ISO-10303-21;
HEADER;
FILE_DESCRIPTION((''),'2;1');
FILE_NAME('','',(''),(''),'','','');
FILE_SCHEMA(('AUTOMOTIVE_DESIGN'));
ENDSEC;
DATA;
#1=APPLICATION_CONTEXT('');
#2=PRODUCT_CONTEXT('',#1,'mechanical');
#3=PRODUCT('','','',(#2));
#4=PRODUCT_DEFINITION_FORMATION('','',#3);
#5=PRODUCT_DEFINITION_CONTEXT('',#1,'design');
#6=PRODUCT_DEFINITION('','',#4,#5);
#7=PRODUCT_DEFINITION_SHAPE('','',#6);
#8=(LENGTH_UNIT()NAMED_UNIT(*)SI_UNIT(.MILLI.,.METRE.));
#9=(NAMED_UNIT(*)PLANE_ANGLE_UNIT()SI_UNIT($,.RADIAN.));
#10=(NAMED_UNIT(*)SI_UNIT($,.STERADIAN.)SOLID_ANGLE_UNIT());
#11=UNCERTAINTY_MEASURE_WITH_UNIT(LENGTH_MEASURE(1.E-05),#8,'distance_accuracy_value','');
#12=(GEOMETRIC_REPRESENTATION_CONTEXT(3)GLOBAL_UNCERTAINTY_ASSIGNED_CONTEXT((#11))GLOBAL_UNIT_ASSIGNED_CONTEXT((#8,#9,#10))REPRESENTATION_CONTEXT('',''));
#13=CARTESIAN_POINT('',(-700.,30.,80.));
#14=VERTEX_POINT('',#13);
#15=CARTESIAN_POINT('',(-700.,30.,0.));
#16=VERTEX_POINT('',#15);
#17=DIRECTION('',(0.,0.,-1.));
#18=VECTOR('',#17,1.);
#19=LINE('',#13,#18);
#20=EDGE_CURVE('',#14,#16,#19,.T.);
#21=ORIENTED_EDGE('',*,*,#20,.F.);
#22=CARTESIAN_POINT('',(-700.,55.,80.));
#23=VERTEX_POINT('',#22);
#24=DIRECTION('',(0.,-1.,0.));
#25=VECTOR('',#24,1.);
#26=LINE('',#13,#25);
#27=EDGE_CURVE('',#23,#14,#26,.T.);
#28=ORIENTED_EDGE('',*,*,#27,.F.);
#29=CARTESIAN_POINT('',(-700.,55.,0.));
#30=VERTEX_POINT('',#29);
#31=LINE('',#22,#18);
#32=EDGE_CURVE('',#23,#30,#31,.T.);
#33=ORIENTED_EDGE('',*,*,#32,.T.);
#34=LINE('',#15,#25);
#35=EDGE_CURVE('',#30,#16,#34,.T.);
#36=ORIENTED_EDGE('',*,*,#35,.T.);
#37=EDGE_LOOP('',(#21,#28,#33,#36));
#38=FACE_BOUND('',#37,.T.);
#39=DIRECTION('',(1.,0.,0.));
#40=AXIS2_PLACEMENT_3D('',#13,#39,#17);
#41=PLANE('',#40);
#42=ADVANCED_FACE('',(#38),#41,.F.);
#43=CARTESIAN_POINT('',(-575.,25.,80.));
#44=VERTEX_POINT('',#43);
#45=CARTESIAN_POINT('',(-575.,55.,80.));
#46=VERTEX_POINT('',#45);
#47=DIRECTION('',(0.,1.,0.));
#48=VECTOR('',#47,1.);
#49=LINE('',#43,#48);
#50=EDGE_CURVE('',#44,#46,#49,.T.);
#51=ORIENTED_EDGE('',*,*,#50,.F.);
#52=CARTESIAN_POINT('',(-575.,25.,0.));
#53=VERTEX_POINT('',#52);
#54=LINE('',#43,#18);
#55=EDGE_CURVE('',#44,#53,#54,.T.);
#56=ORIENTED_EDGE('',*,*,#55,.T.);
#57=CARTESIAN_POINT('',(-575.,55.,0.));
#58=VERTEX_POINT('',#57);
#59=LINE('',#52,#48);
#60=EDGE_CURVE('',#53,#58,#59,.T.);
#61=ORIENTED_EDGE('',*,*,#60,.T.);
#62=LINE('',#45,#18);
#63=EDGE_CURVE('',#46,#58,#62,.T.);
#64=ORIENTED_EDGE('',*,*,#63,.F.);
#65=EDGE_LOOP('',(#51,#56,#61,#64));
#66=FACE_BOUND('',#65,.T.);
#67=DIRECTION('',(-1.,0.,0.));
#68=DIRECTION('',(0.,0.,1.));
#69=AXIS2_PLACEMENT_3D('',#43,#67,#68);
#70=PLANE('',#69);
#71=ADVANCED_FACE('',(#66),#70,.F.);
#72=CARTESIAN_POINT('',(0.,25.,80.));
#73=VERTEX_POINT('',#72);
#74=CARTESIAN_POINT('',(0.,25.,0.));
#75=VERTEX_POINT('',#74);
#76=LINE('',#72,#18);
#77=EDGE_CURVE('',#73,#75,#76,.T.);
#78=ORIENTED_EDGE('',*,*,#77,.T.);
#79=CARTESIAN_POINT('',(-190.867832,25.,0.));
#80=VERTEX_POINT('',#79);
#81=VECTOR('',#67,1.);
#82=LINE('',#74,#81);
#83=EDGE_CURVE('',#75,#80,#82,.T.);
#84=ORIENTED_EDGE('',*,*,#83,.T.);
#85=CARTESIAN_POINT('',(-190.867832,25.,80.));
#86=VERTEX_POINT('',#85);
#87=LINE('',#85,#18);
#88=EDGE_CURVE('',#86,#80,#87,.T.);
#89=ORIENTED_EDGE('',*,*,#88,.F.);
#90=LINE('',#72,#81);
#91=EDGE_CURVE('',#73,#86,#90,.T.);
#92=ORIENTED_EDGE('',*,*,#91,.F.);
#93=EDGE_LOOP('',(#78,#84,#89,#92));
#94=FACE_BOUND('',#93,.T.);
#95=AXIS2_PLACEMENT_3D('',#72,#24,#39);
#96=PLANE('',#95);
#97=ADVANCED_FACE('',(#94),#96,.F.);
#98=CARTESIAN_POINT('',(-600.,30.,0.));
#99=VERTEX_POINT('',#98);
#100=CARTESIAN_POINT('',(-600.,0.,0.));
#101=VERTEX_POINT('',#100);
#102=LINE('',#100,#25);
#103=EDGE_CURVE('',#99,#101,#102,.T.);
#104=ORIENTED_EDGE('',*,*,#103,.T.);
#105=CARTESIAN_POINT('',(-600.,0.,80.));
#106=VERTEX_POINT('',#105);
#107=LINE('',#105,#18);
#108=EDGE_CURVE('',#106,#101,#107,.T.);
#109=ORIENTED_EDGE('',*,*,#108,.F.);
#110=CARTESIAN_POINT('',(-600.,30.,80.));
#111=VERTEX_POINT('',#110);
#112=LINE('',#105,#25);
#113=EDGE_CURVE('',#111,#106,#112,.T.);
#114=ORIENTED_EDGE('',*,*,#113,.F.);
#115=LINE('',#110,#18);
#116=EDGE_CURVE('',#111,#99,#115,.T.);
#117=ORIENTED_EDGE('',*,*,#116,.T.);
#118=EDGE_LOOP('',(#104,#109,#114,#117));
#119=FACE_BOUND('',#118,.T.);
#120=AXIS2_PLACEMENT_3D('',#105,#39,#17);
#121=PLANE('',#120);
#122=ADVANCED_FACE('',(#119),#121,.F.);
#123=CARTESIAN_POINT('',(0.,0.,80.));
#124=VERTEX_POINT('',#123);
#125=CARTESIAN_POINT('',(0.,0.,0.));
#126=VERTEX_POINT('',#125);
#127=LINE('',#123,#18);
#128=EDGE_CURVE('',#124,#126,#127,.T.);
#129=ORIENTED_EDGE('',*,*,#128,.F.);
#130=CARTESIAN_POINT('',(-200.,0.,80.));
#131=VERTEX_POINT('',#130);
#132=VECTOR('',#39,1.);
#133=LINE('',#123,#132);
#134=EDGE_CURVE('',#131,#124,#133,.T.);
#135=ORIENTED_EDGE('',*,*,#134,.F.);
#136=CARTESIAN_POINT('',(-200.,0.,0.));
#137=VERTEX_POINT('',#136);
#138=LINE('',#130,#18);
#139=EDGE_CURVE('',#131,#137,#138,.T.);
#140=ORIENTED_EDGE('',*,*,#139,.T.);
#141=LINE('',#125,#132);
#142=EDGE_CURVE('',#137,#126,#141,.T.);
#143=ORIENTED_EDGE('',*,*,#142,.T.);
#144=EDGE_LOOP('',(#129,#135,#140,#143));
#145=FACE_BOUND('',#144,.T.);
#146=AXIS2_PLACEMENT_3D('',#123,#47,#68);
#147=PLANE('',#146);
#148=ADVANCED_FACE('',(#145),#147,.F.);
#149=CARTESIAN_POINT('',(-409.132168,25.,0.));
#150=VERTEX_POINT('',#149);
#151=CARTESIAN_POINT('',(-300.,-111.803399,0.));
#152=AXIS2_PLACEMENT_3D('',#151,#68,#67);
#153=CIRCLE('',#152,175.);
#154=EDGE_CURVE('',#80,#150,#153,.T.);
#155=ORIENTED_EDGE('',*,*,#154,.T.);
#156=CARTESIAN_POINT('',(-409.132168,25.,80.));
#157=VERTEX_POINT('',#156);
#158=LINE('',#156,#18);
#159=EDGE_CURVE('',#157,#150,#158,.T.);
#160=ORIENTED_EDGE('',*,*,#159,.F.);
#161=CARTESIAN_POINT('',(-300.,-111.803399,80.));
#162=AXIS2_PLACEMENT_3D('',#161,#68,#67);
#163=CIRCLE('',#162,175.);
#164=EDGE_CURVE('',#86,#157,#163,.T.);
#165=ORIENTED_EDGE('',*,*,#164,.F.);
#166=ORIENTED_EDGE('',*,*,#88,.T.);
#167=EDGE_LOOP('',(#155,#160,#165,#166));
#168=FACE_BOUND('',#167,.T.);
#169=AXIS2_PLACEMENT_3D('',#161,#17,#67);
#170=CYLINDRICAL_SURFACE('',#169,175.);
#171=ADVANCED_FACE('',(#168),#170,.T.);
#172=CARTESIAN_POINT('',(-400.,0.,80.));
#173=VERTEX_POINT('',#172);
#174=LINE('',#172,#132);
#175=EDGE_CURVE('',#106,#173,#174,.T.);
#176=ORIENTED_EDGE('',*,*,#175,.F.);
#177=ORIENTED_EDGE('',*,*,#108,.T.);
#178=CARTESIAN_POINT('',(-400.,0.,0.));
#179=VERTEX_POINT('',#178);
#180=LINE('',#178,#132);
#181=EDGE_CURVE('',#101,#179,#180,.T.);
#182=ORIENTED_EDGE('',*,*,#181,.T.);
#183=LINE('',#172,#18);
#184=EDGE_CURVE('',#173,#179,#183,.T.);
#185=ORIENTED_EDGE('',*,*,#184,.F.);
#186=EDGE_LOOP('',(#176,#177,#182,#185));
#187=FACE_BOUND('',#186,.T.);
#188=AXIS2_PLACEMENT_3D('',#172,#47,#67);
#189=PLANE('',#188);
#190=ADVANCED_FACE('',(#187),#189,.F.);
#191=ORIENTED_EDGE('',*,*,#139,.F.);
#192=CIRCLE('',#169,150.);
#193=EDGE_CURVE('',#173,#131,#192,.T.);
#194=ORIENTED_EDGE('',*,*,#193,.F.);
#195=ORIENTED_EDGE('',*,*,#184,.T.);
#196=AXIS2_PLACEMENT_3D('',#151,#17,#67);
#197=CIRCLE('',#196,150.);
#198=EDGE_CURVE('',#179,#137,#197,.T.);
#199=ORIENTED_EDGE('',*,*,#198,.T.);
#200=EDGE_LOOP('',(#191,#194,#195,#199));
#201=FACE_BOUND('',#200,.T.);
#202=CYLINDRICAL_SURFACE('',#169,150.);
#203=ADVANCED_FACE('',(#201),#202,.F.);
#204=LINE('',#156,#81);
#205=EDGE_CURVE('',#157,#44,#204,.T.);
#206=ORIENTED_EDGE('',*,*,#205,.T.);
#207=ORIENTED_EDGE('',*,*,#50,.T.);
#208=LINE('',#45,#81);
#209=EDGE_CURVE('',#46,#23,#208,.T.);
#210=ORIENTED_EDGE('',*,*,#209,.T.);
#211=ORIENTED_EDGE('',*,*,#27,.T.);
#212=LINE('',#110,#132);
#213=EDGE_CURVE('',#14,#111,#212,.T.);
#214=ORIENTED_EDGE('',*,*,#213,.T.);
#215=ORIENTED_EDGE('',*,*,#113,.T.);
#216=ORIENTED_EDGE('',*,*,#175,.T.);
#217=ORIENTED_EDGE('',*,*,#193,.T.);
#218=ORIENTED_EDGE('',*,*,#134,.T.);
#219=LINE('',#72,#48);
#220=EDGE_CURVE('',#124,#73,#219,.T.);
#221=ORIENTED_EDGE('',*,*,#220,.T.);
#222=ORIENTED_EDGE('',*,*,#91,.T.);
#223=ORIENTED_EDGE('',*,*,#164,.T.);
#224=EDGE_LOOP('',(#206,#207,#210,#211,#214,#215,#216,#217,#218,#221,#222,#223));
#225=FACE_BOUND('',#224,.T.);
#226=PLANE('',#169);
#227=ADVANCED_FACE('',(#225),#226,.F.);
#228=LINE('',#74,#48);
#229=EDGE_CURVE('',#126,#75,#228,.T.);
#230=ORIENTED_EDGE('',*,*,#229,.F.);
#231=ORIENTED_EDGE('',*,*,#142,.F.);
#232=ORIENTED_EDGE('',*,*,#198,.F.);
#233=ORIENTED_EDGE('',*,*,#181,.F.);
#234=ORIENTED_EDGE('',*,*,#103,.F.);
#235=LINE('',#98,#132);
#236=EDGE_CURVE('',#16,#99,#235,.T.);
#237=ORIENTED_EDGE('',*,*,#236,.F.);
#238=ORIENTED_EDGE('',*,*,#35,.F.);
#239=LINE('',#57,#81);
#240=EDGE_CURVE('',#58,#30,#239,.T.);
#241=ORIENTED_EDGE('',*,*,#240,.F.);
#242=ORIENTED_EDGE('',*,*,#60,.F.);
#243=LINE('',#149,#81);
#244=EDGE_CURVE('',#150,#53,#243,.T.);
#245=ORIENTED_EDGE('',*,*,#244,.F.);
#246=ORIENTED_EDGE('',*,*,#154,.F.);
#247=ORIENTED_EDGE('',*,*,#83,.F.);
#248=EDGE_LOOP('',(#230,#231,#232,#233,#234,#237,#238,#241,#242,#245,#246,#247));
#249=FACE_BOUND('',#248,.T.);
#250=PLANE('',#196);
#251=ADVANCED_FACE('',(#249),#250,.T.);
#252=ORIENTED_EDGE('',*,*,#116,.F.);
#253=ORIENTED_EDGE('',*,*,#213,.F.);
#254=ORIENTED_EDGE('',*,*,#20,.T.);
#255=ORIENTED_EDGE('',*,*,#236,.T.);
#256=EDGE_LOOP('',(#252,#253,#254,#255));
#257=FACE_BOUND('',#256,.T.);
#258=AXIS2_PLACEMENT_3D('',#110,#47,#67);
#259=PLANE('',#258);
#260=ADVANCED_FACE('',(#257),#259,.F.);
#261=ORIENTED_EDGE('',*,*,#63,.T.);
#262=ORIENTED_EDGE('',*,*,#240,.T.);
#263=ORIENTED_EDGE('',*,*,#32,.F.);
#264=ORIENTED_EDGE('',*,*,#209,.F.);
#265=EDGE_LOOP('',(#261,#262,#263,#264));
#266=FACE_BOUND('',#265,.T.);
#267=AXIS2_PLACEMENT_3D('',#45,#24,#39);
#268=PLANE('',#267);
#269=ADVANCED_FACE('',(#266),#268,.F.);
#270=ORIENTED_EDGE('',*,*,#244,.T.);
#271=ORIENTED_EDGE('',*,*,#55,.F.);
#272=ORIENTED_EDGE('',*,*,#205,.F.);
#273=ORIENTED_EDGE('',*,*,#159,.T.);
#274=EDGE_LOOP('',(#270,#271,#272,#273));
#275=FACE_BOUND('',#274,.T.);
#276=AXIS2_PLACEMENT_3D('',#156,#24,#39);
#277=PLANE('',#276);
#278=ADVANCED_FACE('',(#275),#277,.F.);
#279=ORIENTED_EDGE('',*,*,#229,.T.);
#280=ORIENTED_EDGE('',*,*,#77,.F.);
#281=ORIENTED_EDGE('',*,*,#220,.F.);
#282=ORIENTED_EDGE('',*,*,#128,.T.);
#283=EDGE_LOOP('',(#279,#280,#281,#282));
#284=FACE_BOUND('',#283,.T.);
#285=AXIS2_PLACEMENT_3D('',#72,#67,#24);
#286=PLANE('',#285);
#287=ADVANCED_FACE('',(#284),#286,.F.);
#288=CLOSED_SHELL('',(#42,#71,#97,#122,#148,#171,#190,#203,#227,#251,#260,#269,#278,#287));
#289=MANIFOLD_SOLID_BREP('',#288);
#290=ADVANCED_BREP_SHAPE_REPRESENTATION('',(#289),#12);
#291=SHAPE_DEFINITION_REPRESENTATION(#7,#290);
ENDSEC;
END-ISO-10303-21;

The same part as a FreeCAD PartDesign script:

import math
import FreeCAD as App
import Part
import Sketcher

V = App.Vector
Q = App.Units.Quantity

doc = App.newDocument("Part")
body = doc.addObject("PartDesign::Body", "Body")

sketch1 = body.newObject("Sketcher::SketchObject", "Sketch")
sketch1.AttachmentSupport = (doc.getObject("XY_Plane"), [""])
sketch1.MapMode = "FlatFace"
sketch1.addGeometry([
    Part.LineSegment(V(-200, 0, 0), V(0, 0, 0)),
    Part.LineSegment(V(0, 0, 0), V(0, 25, 0)),
    Part.LineSegment(V(0, 25, 0), V(-191, 25, 0)),
    Part.ArcOfCircle(Part.Circle(V(-300, -112, 0), V(0, 0, 1), 175), math.radians(51), math.radians(129)),
    Part.LineSegment(V(-409, 25, 0), V(-575, 25, 0)),
    Part.LineSegment(V(-575, 25, 0), V(-575, 55, 0)),
    Part.LineSegment(V(-575, 55, 0), V(-700, 55, 0)),
    Part.LineSegment(V(-700, 55, 0), V(-700, 30, 0)),
    Part.LineSegment(V(-700, 30, 0), V(-600, 30, 0)),
    Part.LineSegment(V(-600, 30, 0), V(-600, 0, 0)),
    Part.LineSegment(V(-600, 0, 0), V(-400, 0, 0)),
    Part.ArcOfCircle(Part.Circle(V(-300, -112, 0), V(0, 0, 1), 150), math.radians(48), math.radians(132)),
], False)
sketch1.addConstraint([
    Sketcher.Constraint("Coincident", 0, 2, 1, 1),
    Sketcher.Constraint("Coincident", 1, 2, 2, 1),
    Sketcher.Constraint("Coincident", 2, 2, 3, 1),
    Sketcher.Constraint("Coincident", 3, 2, 4, 1),
    Sketcher.Constraint("Coincident", 4, 2, 5, 1),
    Sketcher.Constraint("Coincident", 5, 2, 6, 1),
    Sketcher.Constraint("Coincident", 6, 2, 7, 1),
    Sketcher.Constraint("Coincident", 7, 2, 8, 1),
    Sketcher.Constraint("Coincident", 8, 2, 9, 1),
    Sketcher.Constraint("Coincident", 9, 2, 10, 1),
    Sketcher.Constraint("Coincident", 10, 2, 11, 2),
    Sketcher.Constraint("Coincident", 11, 1, 0, 1),
    Sketcher.Constraint("Horizontal", 0),
    Sketcher.Constraint("Vertical", 1),
    Sketcher.Constraint("Horizontal", 2),
    Sketcher.Constraint("Horizontal", 4),
    Sketcher.Constraint("Vertical", 5),
    Sketcher.Constraint("Horizontal", 6),
    Sketcher.Constraint("Vertical", 7),
    Sketcher.Constraint("Horizontal", 8),
    Sketcher.Constraint("Vertical", 9),
    Sketcher.Constraint("Horizontal", 10),
    Sketcher.Constraint("Coincident", 0, 2, -1, 1),
    Sketcher.Constraint("Coincident", 11, 3, 3, 3),
    Sketcher.Constraint("PointOnObject", 9, 2, -1),
    Sketcher.Constraint("Horizontal", 2, 2, 3, 2),
    Sketcher.Constraint("Equal", 0, 10),
    Sketcher.Constraint("Equal", 1, 7),
    Sketcher.Constraint("Radius", 3, Q("175 mm")),
    Sketcher.Constraint("Radius", 11, Q("150 mm")),
    Sketcher.Constraint("DistanceX", 0, 1, 0, 2, Q("200 mm")),
    Sketcher.Constraint("DistanceX", 6, 2, 6, 1, Q("125 mm")),
    Sketcher.Constraint("DistanceX", 8, 1, 8, 2, Q("100 mm")),
    Sketcher.Constraint("DistanceY", 1, 1, 1, 2, Q("25 mm")),
    Sketcher.Constraint("DistanceY", 5, 1, 5, 2, Q("30 mm")),
    Sketcher.Constraint("DistanceX", 3, 3, -1, 1, Q("300 mm")),
])
pad1 = body.newObject("PartDesign::Pad", "Pad")
pad1.Profile = sketch1
pad1.Length = 80

doc.recompute()
